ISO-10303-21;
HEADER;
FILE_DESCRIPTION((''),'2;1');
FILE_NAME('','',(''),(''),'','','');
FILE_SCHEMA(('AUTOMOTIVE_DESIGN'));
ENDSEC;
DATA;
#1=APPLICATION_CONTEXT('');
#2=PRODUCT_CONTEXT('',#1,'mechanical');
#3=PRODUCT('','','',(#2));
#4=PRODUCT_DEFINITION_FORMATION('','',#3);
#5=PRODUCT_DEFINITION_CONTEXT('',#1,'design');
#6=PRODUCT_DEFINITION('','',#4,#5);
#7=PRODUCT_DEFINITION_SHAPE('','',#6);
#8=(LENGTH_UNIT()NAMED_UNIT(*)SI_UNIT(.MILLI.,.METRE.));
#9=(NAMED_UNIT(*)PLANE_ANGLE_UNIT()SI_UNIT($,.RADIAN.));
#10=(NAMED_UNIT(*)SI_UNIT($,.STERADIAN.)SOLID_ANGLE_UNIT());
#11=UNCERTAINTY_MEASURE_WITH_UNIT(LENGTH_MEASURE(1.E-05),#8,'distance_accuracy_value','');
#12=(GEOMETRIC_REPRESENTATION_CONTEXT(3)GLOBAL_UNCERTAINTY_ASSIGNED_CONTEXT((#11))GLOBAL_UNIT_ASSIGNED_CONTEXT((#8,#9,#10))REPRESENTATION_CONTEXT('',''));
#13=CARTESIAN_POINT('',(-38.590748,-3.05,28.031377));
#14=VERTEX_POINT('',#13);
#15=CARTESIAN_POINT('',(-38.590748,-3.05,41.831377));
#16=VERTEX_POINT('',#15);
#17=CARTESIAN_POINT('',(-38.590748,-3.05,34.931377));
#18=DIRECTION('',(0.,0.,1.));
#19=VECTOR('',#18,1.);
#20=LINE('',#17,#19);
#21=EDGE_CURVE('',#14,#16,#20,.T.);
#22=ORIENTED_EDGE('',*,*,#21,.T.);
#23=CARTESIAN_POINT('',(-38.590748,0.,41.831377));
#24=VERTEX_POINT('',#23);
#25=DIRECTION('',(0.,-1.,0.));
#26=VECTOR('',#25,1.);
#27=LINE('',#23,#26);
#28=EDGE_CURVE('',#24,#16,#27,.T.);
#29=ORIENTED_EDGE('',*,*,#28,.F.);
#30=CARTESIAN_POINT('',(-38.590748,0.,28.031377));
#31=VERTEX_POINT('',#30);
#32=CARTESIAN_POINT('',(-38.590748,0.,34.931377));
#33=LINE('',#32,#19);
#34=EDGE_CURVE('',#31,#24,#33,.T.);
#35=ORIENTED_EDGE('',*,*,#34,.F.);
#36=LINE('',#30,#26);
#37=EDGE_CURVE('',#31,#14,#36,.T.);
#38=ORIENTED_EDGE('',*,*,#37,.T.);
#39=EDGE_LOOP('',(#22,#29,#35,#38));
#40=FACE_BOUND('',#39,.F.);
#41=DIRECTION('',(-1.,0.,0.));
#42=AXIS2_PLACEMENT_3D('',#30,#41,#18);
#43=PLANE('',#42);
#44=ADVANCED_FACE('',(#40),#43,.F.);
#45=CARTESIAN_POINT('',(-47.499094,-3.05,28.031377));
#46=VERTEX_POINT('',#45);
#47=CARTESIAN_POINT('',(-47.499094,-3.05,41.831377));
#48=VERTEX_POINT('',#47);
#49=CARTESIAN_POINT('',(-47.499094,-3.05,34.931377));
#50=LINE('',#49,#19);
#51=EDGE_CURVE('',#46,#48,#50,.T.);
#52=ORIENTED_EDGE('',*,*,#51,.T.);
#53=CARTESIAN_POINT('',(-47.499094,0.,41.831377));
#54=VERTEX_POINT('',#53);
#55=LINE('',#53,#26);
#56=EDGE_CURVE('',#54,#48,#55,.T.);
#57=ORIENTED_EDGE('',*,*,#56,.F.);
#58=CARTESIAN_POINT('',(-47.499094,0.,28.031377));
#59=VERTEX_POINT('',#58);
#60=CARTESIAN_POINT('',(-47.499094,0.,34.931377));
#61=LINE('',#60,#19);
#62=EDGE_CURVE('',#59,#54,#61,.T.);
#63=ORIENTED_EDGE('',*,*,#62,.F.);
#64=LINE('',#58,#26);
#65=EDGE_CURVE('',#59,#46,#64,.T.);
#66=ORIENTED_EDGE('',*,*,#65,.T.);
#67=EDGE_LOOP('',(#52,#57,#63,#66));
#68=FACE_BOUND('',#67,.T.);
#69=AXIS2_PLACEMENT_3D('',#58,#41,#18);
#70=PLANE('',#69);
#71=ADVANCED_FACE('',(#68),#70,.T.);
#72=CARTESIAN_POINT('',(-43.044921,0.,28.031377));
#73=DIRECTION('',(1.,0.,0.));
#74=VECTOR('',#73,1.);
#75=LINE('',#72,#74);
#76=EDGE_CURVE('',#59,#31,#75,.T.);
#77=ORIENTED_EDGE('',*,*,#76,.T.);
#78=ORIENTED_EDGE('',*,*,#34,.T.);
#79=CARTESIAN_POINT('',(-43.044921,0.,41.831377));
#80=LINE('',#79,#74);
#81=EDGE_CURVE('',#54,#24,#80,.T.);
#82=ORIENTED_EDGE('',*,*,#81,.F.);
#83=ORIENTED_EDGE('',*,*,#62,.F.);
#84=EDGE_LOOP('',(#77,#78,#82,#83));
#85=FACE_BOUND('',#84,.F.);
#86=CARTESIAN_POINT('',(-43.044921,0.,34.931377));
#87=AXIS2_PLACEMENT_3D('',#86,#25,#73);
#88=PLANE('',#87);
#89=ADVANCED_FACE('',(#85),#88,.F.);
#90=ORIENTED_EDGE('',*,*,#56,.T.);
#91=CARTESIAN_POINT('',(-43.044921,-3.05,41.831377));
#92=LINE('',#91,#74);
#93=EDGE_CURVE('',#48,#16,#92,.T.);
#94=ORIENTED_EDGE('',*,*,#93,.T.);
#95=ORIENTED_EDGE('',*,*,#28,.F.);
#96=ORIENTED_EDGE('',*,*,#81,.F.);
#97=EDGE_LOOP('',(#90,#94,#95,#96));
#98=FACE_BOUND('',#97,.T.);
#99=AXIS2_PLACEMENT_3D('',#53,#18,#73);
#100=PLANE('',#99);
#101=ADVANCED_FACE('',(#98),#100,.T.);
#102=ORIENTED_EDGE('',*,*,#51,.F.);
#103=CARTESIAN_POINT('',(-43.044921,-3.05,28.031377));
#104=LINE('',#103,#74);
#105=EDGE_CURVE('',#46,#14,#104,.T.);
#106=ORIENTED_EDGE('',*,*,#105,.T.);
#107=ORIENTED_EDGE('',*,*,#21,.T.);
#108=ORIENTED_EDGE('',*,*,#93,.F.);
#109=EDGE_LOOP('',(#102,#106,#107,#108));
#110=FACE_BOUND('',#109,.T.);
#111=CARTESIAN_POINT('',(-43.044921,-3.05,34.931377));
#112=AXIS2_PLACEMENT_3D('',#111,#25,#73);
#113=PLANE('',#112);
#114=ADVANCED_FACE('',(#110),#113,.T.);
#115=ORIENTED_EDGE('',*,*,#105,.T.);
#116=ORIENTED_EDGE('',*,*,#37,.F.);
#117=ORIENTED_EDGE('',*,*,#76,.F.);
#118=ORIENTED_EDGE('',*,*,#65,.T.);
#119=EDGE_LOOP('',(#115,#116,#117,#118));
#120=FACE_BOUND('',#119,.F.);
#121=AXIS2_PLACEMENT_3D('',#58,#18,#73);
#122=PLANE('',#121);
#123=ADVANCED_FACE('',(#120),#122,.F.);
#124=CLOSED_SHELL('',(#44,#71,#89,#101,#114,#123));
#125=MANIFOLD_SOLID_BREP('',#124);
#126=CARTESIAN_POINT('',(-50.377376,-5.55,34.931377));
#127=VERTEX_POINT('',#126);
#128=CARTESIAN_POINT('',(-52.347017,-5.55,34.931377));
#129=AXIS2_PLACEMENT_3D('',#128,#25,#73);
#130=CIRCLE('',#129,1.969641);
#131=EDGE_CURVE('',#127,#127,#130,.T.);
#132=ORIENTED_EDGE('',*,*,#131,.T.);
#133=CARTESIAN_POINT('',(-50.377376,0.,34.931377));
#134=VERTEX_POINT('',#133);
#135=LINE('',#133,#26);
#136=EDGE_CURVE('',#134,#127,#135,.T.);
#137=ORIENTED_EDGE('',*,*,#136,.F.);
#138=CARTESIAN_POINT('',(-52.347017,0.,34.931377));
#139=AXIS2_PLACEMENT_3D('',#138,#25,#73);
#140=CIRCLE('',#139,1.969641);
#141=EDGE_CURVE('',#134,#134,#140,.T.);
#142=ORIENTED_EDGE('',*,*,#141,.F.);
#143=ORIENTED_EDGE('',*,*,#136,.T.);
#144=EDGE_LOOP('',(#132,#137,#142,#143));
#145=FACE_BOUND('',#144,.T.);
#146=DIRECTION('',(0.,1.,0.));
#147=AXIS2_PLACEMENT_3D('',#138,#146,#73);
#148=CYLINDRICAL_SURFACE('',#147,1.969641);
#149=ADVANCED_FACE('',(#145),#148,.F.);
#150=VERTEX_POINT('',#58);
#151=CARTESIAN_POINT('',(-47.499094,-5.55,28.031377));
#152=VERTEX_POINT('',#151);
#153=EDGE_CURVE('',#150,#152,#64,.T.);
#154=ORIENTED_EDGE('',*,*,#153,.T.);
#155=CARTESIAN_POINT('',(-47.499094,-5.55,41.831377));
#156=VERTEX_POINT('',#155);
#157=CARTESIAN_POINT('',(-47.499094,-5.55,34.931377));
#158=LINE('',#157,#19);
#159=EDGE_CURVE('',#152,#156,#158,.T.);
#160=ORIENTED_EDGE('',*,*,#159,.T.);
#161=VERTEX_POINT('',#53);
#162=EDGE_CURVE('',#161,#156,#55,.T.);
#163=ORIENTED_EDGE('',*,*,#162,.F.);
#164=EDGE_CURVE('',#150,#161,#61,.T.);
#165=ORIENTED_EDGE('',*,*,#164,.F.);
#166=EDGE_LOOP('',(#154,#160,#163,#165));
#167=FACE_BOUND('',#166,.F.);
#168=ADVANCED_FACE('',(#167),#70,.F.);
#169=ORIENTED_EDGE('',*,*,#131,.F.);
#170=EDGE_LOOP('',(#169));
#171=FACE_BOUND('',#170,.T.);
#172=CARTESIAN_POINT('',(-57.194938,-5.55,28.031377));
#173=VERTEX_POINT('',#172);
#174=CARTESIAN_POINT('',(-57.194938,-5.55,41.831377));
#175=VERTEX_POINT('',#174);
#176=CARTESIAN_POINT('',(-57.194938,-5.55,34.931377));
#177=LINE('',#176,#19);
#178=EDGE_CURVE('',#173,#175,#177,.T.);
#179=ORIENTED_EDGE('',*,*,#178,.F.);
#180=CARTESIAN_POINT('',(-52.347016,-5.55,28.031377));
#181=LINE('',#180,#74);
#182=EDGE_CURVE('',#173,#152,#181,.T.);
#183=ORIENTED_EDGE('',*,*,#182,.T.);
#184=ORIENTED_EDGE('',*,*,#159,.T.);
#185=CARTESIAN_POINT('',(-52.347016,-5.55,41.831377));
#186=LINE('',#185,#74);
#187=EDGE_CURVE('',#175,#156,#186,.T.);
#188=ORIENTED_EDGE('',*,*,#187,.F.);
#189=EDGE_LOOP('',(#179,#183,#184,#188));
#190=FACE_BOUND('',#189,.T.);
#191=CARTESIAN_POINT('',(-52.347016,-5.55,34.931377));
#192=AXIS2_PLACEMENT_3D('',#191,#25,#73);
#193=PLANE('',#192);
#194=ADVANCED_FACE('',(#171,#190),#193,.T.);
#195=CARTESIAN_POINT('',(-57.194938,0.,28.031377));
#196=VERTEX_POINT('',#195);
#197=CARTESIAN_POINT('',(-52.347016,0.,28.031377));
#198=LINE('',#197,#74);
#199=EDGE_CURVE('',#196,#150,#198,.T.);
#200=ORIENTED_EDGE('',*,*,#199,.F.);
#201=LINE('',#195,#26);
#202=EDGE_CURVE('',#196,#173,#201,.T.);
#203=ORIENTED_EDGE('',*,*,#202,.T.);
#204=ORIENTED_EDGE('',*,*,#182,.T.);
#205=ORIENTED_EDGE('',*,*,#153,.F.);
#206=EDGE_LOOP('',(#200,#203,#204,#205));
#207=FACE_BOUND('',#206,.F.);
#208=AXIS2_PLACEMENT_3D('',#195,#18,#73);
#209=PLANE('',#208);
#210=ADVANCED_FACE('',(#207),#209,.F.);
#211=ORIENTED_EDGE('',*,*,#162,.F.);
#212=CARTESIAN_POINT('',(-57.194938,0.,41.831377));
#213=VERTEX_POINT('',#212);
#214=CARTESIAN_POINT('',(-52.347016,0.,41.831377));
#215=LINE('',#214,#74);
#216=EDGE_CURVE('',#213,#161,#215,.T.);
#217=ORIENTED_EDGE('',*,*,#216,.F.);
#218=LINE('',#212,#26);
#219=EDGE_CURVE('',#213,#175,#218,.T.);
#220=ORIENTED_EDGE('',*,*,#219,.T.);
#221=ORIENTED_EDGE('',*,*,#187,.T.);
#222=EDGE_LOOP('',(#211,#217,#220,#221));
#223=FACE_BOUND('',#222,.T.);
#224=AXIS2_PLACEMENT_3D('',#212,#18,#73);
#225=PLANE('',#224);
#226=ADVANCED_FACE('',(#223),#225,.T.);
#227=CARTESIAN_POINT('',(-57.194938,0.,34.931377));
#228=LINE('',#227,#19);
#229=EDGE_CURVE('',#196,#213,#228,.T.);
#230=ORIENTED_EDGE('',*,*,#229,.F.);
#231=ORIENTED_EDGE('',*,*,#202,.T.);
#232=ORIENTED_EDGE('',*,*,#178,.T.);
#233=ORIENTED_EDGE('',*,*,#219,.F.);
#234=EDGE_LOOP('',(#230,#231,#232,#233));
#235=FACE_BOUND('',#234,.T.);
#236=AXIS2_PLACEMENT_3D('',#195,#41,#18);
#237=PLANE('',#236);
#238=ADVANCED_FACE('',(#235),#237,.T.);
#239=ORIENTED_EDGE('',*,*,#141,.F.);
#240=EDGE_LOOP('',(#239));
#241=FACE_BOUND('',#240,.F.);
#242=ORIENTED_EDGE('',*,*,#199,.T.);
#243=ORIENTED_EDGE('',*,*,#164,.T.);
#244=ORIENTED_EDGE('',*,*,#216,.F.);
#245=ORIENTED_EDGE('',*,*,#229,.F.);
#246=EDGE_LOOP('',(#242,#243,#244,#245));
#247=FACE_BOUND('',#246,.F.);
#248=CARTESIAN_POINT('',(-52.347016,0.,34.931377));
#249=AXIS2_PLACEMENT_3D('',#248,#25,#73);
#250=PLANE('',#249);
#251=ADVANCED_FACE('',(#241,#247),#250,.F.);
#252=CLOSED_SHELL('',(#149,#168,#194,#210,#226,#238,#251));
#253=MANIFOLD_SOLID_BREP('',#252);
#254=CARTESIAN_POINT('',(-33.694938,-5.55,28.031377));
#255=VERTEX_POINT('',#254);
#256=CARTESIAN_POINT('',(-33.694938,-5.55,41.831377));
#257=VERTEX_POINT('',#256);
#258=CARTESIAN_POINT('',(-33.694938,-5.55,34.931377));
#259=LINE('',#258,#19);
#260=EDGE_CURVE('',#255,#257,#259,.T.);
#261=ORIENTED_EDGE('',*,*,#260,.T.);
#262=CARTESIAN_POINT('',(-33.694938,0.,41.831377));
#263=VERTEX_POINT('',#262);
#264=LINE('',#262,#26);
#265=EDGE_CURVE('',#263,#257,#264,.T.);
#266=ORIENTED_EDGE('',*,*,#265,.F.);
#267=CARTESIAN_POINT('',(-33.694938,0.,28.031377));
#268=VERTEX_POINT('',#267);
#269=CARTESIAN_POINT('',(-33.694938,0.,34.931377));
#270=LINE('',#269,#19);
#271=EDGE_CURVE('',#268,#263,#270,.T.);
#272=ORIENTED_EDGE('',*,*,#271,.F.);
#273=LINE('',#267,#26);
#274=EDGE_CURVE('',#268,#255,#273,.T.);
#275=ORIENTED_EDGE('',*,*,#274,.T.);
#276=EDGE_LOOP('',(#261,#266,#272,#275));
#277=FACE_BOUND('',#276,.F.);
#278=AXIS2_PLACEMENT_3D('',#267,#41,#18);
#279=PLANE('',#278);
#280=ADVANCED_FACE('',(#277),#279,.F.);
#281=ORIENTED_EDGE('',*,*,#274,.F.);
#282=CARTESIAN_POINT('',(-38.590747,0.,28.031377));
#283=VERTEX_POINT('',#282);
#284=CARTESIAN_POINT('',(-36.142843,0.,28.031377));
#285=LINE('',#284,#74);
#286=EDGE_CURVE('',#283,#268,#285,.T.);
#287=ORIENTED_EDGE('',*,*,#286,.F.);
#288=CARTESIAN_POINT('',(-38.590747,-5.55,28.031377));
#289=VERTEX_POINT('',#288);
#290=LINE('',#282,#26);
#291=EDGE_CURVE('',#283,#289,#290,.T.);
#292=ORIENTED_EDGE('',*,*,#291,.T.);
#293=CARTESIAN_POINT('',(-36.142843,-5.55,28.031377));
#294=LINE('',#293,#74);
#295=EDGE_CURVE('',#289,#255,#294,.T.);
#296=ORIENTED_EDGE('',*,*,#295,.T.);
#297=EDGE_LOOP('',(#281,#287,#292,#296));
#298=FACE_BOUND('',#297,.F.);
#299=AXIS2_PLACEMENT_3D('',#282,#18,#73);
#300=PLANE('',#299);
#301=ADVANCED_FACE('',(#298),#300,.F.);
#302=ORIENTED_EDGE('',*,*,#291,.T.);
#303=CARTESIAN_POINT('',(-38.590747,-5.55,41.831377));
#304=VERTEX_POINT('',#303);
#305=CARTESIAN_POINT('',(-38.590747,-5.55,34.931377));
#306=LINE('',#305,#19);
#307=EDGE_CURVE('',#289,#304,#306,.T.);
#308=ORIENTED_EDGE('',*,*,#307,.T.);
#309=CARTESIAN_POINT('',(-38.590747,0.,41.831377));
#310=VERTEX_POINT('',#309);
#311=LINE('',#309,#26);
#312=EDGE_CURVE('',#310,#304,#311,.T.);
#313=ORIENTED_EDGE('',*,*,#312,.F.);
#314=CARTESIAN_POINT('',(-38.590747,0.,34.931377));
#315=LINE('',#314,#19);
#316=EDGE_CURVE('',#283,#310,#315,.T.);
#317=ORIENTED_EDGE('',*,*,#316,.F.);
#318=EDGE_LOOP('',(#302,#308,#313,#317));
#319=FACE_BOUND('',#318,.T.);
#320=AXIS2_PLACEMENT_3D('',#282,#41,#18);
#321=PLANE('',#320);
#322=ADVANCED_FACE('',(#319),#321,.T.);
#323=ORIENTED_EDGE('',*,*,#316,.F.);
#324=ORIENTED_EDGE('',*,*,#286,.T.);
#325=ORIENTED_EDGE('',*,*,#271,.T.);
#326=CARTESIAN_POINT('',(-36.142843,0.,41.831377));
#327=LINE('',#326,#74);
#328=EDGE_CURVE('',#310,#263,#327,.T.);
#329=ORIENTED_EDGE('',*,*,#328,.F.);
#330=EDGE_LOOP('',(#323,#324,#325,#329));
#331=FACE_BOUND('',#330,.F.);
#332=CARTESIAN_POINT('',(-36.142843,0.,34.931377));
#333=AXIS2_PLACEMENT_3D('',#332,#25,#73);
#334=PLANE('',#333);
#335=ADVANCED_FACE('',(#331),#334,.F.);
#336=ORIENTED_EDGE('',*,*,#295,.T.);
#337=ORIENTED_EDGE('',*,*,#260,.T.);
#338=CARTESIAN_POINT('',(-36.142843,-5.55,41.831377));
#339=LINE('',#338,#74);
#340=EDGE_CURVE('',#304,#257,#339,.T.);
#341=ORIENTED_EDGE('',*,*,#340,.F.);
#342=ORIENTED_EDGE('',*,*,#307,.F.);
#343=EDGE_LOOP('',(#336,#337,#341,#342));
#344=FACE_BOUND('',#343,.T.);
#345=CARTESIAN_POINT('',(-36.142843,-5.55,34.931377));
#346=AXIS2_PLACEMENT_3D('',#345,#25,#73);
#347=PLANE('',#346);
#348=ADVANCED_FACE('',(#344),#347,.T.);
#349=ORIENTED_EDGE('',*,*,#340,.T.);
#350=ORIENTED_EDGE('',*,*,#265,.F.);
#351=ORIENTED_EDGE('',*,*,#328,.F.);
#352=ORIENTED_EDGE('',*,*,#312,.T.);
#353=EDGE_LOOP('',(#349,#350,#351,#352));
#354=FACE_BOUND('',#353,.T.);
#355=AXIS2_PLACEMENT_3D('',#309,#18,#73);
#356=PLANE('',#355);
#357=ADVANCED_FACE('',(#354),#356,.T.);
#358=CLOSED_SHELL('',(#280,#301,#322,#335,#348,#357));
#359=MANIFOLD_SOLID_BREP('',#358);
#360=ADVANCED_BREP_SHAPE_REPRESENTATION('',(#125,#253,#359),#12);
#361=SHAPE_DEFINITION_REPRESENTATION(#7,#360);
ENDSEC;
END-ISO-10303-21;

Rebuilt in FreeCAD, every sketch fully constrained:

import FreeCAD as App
import Part
import Sketcher
from FreeCAD import Vector
Q = App.Units.Quantity


def add_polygon(sketch, points):
    """Adds a closed chain of lines whose ends are joined by coincident constraints."""
    first, n = sketch.GeometryCount, len(points)
    for a, b in zip(points, points[1:] + points[:1]):
        sketch.addGeometry(Part.LineSegment(App.Vector(*a, 0), App.Vector(*b, 0)), False)
    for i in range(n):
        sketch.addConstraint(Sketcher.Constraint("Coincident", first + i, 2, first + (i + 1) % n, 1))

doc = App.newDocument("Part")
params = doc.addObject("Spreadsheet::Sheet", "Params")
for row, (alias, value) in enumerate([
    ("sketch1_height", "13.8 mm"),
    ("pad1_length", "5.55 mm"),
    ("sketch2_height", "13.8 mm"),
    ("pad2_length", "3.05 mm"),
], start=1):
    params.set(f"A{row}", alias)
    params.set(f"B{row}", "=" + value)
    params.setAlias(f"B{row}", alias)

body = doc.addObject("PartDesign::Body", "Body")
body.AllowCompound = True

sketch1 = body.newObject("Sketcher::SketchObject", "Sketch")
sketch1.AttachmentSupport = (doc.getObject("XZ_Plane"), [""])
sketch1.MapMode = "FlatFace"
add_polygon(sketch1, [(-57.2, 41.8), (-57.2, 28), (-47.5, 28), (-47.5, 41.8)])
sketch1.addGeometry(Part.Circle(Vector(-52.3, 34.9, 0), Vector(0, 0, 1), 2), False)
add_polygon(sketch1, [(-38.6, 41.8), (-38.6, 28), (-33.7, 28), (-33.7, 41.8)])
sketch1.addConstraint([
    Sketcher.Constraint("Vertical", 0),
    Sketcher.Constraint("Horizontal", 1),
    Sketcher.Constraint("Vertical", 2),
    Sketcher.Constraint("Horizontal", 3),
    Sketcher.Constraint("Vertical", 5),
    Sketcher.Constraint("Horizontal", 6),
    Sketcher.Constraint("Vertical", 7),
    Sketcher.Constraint("Horizontal", 8),
    Sketcher.Constraint("Horizontal", 1, 2, 5, 2),
    Sketcher.Constraint("Horizontal", 3, 2, 7, 2),
    Sketcher.Constraint("DistanceY", 0, 2, 0, 1, Q("13.8 mm")),
    Sketcher.Constraint("DistanceY", 0, 2, 4, 3, Q("6.9 mm")),
    Sketcher.Constraint("DistanceX", 0, 2, 6, 2, Q("23.5 mm")),
    Sketcher.Constraint("Diameter", 4, Q("3.939282 mm")),
    Sketcher.Constraint("DistanceX", 6, 1, 6, 2, Q("4.895809 mm")),
    Sketcher.Constraint("DistanceX", 1, 1, 1, 2, Q("9.695845 mm")),
    Sketcher.Constraint("DistanceX", 0, 2, -1, 1, Q("57.194938 mm")),
    Sketcher.Constraint("DistanceX", 0, 2, 4, 3, Q("4.847921 mm")),
    Sketcher.Constraint("DistanceY", -1, 1, 4, 3, Q("34.931377 mm")),
])
sketch1.setExpression("Constraints[18]", "Params.sketch1_height")
pad1 = body.newObject("PartDesign::Pad", "Pad")
pad1.Profile = sketch1
pad1.setExpression("Length", "Params.pad1_length")
body2 = doc.addObject("PartDesign::Body", "Body001")

sketch2 = body2.newObject("Sketcher::SketchObject", "Sketch001")
sketch2.AttachmentSupport = (doc.getObject("XZ_Plane001"), [""])
sketch2.MapMode = "FlatFace"
add_polygon(sketch2, [(-47, 42), (-47, 28), (-39, 28), (-39, 42)])
sketch2.addConstraint([
    Sketcher.Constraint("Vertical", 0),
    Sketcher.Constraint("Horizontal", 1),
    Sketcher.Constraint("Vertical", 2),
    Sketcher.Constraint("Horizontal", 3),
    Sketcher.Constraint("DistanceY", 0, 2, 0, 1, Q("13.8 mm")),
    Sketcher.Constraint("DistanceX", 1, 1, 1, 2, Q("8.908346 mm")),
    Sketcher.Constraint("DistanceX", 0, 2, -1, 1, Q("47.499094 mm")),
    Sketcher.Constraint("DistanceY", -1, 1, 0, 2, Q("28.031377 mm")),
])
sketch2.setExpression("Constraints[8]", "Params.sketch2_height")
pad2 = body2.newObject("PartDesign::Pad", "Pad001")
pad2.Profile = sketch2
pad2.setExpression("Length", "Params.pad2_length")

doc.recompute()
